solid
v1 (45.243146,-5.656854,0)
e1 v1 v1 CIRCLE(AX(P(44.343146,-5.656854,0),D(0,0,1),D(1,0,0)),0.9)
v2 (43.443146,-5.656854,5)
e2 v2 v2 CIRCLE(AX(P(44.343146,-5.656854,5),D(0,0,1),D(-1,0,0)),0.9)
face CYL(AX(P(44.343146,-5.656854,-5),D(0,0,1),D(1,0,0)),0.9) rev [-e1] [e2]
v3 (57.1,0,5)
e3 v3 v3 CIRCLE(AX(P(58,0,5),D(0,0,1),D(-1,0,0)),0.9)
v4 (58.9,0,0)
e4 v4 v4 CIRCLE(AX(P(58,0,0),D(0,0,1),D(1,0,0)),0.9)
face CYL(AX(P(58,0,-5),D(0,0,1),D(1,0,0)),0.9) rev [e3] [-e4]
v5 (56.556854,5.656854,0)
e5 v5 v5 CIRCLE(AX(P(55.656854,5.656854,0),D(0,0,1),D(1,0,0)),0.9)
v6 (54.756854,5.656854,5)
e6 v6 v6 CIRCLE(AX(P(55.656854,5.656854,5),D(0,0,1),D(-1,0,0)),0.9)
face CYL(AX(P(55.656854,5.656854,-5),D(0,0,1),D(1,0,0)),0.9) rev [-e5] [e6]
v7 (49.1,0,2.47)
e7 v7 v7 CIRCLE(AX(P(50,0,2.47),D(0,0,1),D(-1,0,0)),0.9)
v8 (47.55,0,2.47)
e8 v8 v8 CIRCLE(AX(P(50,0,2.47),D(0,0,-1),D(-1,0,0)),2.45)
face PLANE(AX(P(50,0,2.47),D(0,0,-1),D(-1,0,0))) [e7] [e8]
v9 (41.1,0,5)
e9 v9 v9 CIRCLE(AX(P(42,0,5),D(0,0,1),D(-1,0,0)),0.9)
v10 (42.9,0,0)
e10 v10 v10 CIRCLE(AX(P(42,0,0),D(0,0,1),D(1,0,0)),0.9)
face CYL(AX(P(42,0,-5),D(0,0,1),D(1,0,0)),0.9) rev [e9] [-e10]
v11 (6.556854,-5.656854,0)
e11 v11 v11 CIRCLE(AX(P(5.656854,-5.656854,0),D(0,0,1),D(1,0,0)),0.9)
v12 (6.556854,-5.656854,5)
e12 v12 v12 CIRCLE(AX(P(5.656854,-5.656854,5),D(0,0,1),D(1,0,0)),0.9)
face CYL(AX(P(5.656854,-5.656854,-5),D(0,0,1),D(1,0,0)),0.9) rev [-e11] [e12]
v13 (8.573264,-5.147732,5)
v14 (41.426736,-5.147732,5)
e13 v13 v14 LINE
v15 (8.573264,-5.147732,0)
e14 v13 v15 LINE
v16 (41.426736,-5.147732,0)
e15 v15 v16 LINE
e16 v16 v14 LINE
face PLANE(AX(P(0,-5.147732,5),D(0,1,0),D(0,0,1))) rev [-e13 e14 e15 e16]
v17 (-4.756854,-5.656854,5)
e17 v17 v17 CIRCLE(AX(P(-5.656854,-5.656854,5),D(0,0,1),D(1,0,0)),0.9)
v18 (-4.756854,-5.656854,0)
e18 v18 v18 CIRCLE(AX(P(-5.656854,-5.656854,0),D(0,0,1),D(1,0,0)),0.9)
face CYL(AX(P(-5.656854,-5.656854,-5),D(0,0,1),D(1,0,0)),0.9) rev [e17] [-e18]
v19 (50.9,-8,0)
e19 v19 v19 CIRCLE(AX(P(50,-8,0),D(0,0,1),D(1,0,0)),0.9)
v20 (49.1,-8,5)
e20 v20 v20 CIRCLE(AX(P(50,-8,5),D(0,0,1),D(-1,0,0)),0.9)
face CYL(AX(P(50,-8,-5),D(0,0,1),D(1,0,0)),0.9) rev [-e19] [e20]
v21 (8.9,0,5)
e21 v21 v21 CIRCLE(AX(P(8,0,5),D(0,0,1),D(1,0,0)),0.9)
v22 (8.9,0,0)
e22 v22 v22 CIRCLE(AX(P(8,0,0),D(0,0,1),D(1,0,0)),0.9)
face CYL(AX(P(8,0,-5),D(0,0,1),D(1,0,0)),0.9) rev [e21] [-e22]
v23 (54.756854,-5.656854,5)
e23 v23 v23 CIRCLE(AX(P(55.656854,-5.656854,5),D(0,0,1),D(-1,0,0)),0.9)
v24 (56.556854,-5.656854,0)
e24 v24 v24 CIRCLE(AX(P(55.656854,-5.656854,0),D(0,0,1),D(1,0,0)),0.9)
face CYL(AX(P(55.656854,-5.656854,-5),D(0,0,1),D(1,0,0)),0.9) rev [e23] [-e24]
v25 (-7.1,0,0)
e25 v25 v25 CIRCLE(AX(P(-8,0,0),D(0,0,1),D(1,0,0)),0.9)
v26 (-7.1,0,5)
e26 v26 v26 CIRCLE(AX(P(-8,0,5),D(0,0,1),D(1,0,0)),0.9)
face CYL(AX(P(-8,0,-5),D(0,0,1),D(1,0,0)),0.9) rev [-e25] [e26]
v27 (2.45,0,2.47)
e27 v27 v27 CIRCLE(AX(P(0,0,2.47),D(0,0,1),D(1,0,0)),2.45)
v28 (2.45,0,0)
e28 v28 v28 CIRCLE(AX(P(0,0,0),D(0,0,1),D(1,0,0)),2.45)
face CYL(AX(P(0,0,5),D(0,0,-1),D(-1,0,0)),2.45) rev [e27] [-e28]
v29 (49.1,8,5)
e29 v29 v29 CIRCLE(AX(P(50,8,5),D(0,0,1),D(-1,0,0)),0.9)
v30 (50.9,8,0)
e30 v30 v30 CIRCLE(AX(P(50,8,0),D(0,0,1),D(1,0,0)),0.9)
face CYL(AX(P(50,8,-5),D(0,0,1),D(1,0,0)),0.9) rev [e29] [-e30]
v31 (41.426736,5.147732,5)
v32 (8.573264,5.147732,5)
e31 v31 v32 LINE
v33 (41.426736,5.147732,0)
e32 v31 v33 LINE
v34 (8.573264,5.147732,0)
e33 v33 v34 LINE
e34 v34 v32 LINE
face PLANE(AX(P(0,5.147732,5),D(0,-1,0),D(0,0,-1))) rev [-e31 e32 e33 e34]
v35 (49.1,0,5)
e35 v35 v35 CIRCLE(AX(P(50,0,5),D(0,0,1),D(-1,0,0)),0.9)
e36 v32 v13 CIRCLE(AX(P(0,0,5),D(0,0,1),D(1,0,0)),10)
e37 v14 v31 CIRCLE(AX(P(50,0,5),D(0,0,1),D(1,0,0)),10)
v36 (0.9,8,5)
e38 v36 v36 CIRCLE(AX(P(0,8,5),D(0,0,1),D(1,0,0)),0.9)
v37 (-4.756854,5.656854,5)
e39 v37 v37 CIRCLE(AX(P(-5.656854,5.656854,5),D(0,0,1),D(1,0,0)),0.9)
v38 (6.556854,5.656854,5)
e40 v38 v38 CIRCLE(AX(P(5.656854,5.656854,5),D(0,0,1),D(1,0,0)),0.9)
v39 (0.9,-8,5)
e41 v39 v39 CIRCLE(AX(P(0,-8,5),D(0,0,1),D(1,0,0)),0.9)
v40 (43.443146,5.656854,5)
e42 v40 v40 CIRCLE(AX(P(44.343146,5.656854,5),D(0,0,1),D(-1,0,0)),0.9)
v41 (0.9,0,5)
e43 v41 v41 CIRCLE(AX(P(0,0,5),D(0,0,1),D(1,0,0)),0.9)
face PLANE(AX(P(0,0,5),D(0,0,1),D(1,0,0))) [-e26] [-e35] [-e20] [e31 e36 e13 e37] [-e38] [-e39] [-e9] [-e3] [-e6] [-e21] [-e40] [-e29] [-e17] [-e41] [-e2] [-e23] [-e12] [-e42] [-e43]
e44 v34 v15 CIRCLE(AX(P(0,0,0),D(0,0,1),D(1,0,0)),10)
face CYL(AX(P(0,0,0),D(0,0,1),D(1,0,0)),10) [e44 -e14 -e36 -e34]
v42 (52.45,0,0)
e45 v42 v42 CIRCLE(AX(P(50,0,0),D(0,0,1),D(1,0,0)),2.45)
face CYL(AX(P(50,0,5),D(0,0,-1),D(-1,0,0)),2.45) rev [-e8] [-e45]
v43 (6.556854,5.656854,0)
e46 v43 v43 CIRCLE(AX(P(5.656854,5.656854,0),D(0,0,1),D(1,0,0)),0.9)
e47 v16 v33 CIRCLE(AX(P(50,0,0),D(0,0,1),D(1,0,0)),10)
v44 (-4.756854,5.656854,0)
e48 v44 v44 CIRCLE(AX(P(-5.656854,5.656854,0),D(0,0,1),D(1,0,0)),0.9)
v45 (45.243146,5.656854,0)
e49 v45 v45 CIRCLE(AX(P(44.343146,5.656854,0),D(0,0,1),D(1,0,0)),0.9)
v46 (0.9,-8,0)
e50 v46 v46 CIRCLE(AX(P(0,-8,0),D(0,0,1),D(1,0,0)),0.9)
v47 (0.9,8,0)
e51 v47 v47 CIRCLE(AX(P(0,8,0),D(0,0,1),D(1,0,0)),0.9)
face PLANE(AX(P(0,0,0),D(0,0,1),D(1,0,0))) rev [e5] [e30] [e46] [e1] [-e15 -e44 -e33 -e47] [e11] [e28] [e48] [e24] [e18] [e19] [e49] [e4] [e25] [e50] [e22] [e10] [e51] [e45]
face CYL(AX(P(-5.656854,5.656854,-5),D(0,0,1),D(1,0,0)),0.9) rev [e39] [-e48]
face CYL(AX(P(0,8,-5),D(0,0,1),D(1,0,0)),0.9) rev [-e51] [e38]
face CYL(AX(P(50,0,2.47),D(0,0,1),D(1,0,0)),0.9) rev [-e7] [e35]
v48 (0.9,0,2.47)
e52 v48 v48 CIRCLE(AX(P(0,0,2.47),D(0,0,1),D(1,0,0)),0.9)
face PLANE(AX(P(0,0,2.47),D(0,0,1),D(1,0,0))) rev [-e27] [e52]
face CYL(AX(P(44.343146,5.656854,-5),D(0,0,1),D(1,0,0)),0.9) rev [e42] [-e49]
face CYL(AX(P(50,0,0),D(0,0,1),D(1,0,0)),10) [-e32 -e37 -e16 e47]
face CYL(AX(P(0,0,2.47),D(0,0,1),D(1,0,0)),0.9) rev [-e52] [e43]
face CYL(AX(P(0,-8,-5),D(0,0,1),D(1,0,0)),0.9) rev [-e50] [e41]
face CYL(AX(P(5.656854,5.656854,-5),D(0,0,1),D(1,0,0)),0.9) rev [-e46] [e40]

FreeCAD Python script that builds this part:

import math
import FreeCAD as App
import Part
import Sketcher
from FreeCAD import Vector

doc = App.newDocument("Part")
body = doc.addObject("PartDesign::Body", "Body")

# Sketch on XY plane
sketch1 = body.newObject("Sketcher::SketchObject", "Sketch")
sketch1.AttachmentSupport = (doc.getObject("XY_Plane"), [""])
sketch1.MapMode = "FlatFace"
sketch1.addGeometry(Part.LineSegment(Vector(50, 5.1, 0), Vector(0, 5.1, 0)), False)
sketch1.addGeometry(Part.ArcOfCircle(Part.Circle(Vector(0, 0, 0), Vector(0, 0, 1), 5.1), math.radians(90), math.radians(270)), False)
sketch1.addGeometry(Part.LineSegment(Vector(0, -5.1, 0), Vector(50, -5.1, 0)), False)
sketch1.addGeometry(Part.ArcOfCircle(Part.Circle(Vector(50, 0, 0), Vector(0, 0, 1), 5.1), math.radians(-90), math.radians(90)), False)
sketch1.addGeometry(Part.Circle(Vector(50, 0, 0), Vector(0, 0, 1), 2.5), False)
sketch1.addGeometry(Part.Circle(Vector(0, 0, 0), Vector(0, 0, 1), 2.5), False)
sketch1.addConstraint(Sketcher.Constraint("Tangent", 0, 2, 1, 1))
sketch1.addConstraint(Sketcher.Constraint("Tangent", 1, 2, 2, 1))
sketch1.addConstraint(Sketcher.Constraint("Tangent", 2, 2, 3, 1))
sketch1.addConstraint(Sketcher.Constraint("Tangent", 3, 2, 0, 1))
sketch1.addConstraint(Sketcher.Constraint("Horizontal", 0))
sketch1.addConstraint(Sketcher.Constraint("Horizontal", 2))
sketch1.addConstraint(Sketcher.Constraint("Coincident", 1, 3, -1, 1))
sketch1.addConstraint(Sketcher.Constraint("Coincident", 5, 3, -1, 1))
sketch1.addConstraint(Sketcher.Constraint("Coincident", 4, 3, 3, 3))
sketch1.addConstraint(Sketcher.Constraint("Equal", 4, 5))
sketch1.addConstraint(Sketcher.Constraint("Diameter", 4, 4.9))
sketch1.addConstraint(Sketcher.Constraint("DistanceX", 0, 2, 0, 1, 50.0))
sketch1.addConstraint(Sketcher.Constraint("Radius", 1, 5.147732))
pad1 = body.newObject("PartDesign::Pad", "Pad")
pad1.Profile = sketch1
pad1.Length = 5

# Sketch on XY plane
sketch2 = body.newObject("Sketcher::SketchObject", "Sketch001")
sketch2.AttachmentSupport = (doc.getObject("XY_Plane"), [""])
sketch2.MapMode = "FlatFace"
sketch2.AttachmentOffset = App.Placement(Vector(0, 0, 2.47), App.Rotation())
sketch2.addGeometry(Part.Circle(Vector(0, 0, 0), Vector(0, 0, 1), 2.5), False)
sketch2.addGeometry(Part.Circle(Vector(0, 0, 0), Vector(0, 0, 1), 0.9), False)
sketch2.addGeometry(Part.Circle(Vector(50, 0, 0), Vector(0, 0, 1), 2.5), False)
sketch2.addGeometry(Part.Circle(Vector(50, 0, 0), Vector(0, 0, 1), 0.9), False)
sketch2.addConstraint(Sketcher.Constraint("Coincident", 0, 3, -1, 1))
sketch2.addConstraint(Sketcher.Constraint("Coincident", 1, 3, -1, 1))
sketch2.addConstraint(Sketcher.Constraint("Coincident", 3, 3, 2, 3))
sketch2.addConstraint(Sketcher.Constraint("Equal", 0, 2))
sketch2.addConstraint(Sketcher.Constraint("Equal", 1, 3))
sketch2.addConstraint(Sketcher.Constraint("PointOnObject", 2, 3, -1))
sketch2.addConstraint(Sketcher.Constraint("Diameter", 0, 4.9))
sketch2.addConstraint(Sketcher.Constraint("Diameter", 1, 1.8))
sketch2.addConstraint(Sketcher.Constraint("DistanceX", -1, 1, 2, 3, 50.0))
pad2 = body.newObject("PartDesign::Pad", "Pad001")
pad2.Profile = sketch2
pad2.Length = 2.53

# Sketch on XY plane
sketch3 = body.newObject("Sketcher::SketchObject", "Sketch002")
sketch3.AttachmentSupport = (doc.getObject("XY_Plane"), [""])
sketch3.MapMode = "FlatFace"
sketch3.addGeometry(Part.Circle(Vector(0, 0, 0), Vector(0, 0, 1), 10), False)
sketch3.addGeometry(Part.Circle(Vector(0, 0, 0), Vector(0, 0, 1), 2.5), False)
sketch3.addGeometry(Part.Circle(Vector(50, 0, 0), Vector(0, 0, 1), 10), False)
sketch3.addGeometry(Part.Circle(Vector(50, 0, 0), Vector(0, 0, 1), 2.5), False)
sketch3.addConstraint(Sketcher.Constraint("Coincident", 0, 3, -1, 1))
sketch3.addConstraint(Sketcher.Constraint("Coincident", 1, 3, -1, 1))
sketch3.addConstraint(Sketcher.Constraint("Coincident", 3, 3, 2, 3))
sketch3.addConstraint(Sketcher.Constraint("Equal", 0, 2))
sketch3.addConstraint(Sketcher.Constraint("Equal", 1, 3))
sketch3.addConstraint(Sketcher.Constraint("PointOnObject", 2, 3, -1))
sketch3.addConstraint(Sketcher.Constraint("Diameter", 0, 20.0))
sketch3.addConstraint(Sketcher.Constraint("Diameter", 1, 4.9))
sketch3.addConstraint(Sketcher.Constraint("DistanceX", -1, 1, 2, 3, 50.0))
pad3 = body.newObject("PartDesign::Pad", "Pad002")
pad3.Profile = sketch3
pad3.Length = 5

# Sketch on XY plane
sketch4 = body.newObject("Sketcher::SketchObject", "Sketch003")
sketch4.AttachmentSupport = (doc.getObject("XY_Plane"), [""])
sketch4.MapMode = "FlatFace"
sketch4.AttachmentOffset = App.Placement(Vector(0, 0, 5), App.Rotation())
sketch4.addGeometry(Part.Circle(Vector(-8, 0, 0), Vector(0, 0, 1), 0.9), False)
sketch4.addGeometry(Part.Circle(Vector(-5.7, 5.7, 0), Vector(0, 0, 1), 0.9), False)
sketch4.addGeometry(Part.Circle(Vector(0, 8, 0), Vector(0, 0, 1), 0.9), False)
sketch4.addGeometry(Part.Circle(Vector(5.7, 5.7, 0), Vector(0, 0, 1), 0.9), False)
sketch4.addGeometry(Part.Circle(Vector(8, 0, 0), Vector(0, 0, 1), 0.9), False)
sketch4.addGeometry(Part.Circle(Vector(5.7, -5.7, 0), Vector(0, 0, 1), 0.9), False)
sketch4.addGeometry(Part.Circle(Vector(0, -8, 0), Vector(0, 0, 1), 0.9), False)
sketch4.addGeometry(Part.Circle(Vector(-5.7, -5.7, 0), Vector(0, 0, 1), 0.9), False)
sketch4.addGeometry(Part.Circle(Vector(44.3, 5.7, 0), Vector(0, 0, 1), 0.9), False)
sketch4.addGeometry(Part.Circle(Vector(42, 0, 0), Vector(0, 0, 1), 0.9), False)
sketch4.addGeometry(Part.Circle(Vector(44.3, -5.7, 0), Vector(0, 0, 1), 0.9), False)
sketch4.addGeometry(Part.Circle(Vector(50, -8, 0), Vector(0, 0, 1), 0.9), False)
sketch4.addGeometry(Part.Circle(Vector(55.7, -5.7, 0), Vector(0, 0, 1), 0.9), False)
sketch4.addGeometry(Part.Circle(Vector(58, 0, 0), Vector(0, 0, 1), 0.9), False)
sketch4.addGeometry(Part.Circle(Vector(55.7, 5.7, 0), Vector(0, 0, 1), 0.9), False)
sketch4.addGeometry(Part.Circle(Vector(50, 8, 0), Vector(0, 0, 1), 0.9), False)
sketch4.addConstraint(Sketcher.Constraint("Equal", 0, 1))
sketch4.addConstraint(Sketcher.Constraint("Equal", 1, 2))
sketch4.addConstraint(Sketcher.Constraint("Equal", 2, 3))
sketch4.addConstraint(Sketcher.Constraint("Equal", 3, 4))
sketch4.addConstraint(Sketcher.Constraint("Equal", 4, 5))
sketch4.addConstraint(Sketcher.Constraint("Equal", 5, 6))
sketch4.addConstraint(Sketcher.Constraint("Equal", 6, 7))
sketch4.addConstraint(Sketcher.Constraint("Equal", 7, 8))
sketch4.addConstraint(Sketcher.Constraint("Equal", 8, 9))
sketch4.addConstraint(Sketcher.Constraint("Equal", 9, 10))
sketch4.addConstraint(Sketcher.Constraint("Equal", 10, 11))
sketch4.addConstraint(Sketcher.Constraint("Equal", 11, 12))
sketch4.addConstraint(Sketcher.Constraint("Equal", 12, 13))
sketch4.addConstraint(Sketcher.Constraint("Equal", 13, 14))
sketch4.addConstraint(Sketcher.Constraint("Equal", 14, 15))
sketch4.addConstraint(Sketcher.Constraint("Symmetric", 0, 3, 4, 3, -1, 1))
sketch4.addConstraint(Sketcher.Constraint("Symmetric", 1, 3, 5, 3, -1, 1))
sketch4.addConstraint(Sketcher.Constraint("Symmetric", 2, 3, 6, 3, -1, 1))
sketch4.addConstraint(Sketcher.Constraint("Symmetric", 3, 3, 7, 3, -1, 1))
sketch4.addConstraint(Sketcher.Constraint("Symmetric", 1, 3, 3, 3, -2))
sketch4.addConstraint(Sketcher.Constraint("Symmetric", 8, 3, 10, 3, -1))
sketch4.addConstraint(Sketcher.Constraint("Symmetric", 12, 3, 14, 3, -1))
sketch4.addConstraint(Sketcher.Constraint("Symmetric", 11, 3, 15, 3, -1))
sketch4.addConstraint(Sketcher.Constraint("PointOnObject", 0, 3, -1))
sketch4.addConstraint(Sketcher.Constraint("PointOnObject", 2, 3, -2))
sketch4.addConstraint(Sketcher.Constraint("PointOnObject", 9, 3, -1))
sketch4.addConstraint(Sketcher.Constraint("PointOnObject", 13, 3, -1))
sketch4.addConstraint(Sketcher.Constraint("Horizontal", 3, 3, 8, 3))
sketch4.addConstraint(Sketcher.Constraint("Horizontal", 6, 3, 11, 3))
sketch4.addConstraint(Sketcher.Constraint("Horizontal", 10, 3, 12, 3))
sketch4.addConstraint(Sketcher.Constraint("Diameter", 0, 1.8))
sketch4.addConstraint(Sketcher.Constraint("DistanceX", 0, 3, -1, 1, 8.0))
sketch4.addConstraint(Sketcher.Constraint("DistanceY", -1, 1, 2, 3, 8.0))
sketch4.addConstraint(Sketcher.Constraint("DistanceX", -1, 1, 9, 3, 42.0))
sketch4.addConstraint(Sketcher.Constraint("DistanceX", -1, 1, 11, 3, 50.0))
sketch4.addConstraint(Sketcher.Constraint("DistanceX", -1, 1, 13, 3, 58.0))
sketch4.addConstraint(Sketcher.Constraint("DistanceX", 1, 3, 3, 3, 11.313708))
sketch4.addConstraint(Sketcher.Constraint("DistanceY", 5, 3, 3, 3, 11.313708))
sketch4.addConstraint(Sketcher.Constraint("DistanceX", 3, 3, 8, 3, 38.686292))
sketch4.addConstraint(Sketcher.Constraint("DistanceX", 10, 3, 12, 3, 11.313708))
pocket1 = body.newObject("PartDesign::Pocket", "Pocket")
pocket1.Profile = sketch4
pocket1.Length = 10

doc.recompute()
